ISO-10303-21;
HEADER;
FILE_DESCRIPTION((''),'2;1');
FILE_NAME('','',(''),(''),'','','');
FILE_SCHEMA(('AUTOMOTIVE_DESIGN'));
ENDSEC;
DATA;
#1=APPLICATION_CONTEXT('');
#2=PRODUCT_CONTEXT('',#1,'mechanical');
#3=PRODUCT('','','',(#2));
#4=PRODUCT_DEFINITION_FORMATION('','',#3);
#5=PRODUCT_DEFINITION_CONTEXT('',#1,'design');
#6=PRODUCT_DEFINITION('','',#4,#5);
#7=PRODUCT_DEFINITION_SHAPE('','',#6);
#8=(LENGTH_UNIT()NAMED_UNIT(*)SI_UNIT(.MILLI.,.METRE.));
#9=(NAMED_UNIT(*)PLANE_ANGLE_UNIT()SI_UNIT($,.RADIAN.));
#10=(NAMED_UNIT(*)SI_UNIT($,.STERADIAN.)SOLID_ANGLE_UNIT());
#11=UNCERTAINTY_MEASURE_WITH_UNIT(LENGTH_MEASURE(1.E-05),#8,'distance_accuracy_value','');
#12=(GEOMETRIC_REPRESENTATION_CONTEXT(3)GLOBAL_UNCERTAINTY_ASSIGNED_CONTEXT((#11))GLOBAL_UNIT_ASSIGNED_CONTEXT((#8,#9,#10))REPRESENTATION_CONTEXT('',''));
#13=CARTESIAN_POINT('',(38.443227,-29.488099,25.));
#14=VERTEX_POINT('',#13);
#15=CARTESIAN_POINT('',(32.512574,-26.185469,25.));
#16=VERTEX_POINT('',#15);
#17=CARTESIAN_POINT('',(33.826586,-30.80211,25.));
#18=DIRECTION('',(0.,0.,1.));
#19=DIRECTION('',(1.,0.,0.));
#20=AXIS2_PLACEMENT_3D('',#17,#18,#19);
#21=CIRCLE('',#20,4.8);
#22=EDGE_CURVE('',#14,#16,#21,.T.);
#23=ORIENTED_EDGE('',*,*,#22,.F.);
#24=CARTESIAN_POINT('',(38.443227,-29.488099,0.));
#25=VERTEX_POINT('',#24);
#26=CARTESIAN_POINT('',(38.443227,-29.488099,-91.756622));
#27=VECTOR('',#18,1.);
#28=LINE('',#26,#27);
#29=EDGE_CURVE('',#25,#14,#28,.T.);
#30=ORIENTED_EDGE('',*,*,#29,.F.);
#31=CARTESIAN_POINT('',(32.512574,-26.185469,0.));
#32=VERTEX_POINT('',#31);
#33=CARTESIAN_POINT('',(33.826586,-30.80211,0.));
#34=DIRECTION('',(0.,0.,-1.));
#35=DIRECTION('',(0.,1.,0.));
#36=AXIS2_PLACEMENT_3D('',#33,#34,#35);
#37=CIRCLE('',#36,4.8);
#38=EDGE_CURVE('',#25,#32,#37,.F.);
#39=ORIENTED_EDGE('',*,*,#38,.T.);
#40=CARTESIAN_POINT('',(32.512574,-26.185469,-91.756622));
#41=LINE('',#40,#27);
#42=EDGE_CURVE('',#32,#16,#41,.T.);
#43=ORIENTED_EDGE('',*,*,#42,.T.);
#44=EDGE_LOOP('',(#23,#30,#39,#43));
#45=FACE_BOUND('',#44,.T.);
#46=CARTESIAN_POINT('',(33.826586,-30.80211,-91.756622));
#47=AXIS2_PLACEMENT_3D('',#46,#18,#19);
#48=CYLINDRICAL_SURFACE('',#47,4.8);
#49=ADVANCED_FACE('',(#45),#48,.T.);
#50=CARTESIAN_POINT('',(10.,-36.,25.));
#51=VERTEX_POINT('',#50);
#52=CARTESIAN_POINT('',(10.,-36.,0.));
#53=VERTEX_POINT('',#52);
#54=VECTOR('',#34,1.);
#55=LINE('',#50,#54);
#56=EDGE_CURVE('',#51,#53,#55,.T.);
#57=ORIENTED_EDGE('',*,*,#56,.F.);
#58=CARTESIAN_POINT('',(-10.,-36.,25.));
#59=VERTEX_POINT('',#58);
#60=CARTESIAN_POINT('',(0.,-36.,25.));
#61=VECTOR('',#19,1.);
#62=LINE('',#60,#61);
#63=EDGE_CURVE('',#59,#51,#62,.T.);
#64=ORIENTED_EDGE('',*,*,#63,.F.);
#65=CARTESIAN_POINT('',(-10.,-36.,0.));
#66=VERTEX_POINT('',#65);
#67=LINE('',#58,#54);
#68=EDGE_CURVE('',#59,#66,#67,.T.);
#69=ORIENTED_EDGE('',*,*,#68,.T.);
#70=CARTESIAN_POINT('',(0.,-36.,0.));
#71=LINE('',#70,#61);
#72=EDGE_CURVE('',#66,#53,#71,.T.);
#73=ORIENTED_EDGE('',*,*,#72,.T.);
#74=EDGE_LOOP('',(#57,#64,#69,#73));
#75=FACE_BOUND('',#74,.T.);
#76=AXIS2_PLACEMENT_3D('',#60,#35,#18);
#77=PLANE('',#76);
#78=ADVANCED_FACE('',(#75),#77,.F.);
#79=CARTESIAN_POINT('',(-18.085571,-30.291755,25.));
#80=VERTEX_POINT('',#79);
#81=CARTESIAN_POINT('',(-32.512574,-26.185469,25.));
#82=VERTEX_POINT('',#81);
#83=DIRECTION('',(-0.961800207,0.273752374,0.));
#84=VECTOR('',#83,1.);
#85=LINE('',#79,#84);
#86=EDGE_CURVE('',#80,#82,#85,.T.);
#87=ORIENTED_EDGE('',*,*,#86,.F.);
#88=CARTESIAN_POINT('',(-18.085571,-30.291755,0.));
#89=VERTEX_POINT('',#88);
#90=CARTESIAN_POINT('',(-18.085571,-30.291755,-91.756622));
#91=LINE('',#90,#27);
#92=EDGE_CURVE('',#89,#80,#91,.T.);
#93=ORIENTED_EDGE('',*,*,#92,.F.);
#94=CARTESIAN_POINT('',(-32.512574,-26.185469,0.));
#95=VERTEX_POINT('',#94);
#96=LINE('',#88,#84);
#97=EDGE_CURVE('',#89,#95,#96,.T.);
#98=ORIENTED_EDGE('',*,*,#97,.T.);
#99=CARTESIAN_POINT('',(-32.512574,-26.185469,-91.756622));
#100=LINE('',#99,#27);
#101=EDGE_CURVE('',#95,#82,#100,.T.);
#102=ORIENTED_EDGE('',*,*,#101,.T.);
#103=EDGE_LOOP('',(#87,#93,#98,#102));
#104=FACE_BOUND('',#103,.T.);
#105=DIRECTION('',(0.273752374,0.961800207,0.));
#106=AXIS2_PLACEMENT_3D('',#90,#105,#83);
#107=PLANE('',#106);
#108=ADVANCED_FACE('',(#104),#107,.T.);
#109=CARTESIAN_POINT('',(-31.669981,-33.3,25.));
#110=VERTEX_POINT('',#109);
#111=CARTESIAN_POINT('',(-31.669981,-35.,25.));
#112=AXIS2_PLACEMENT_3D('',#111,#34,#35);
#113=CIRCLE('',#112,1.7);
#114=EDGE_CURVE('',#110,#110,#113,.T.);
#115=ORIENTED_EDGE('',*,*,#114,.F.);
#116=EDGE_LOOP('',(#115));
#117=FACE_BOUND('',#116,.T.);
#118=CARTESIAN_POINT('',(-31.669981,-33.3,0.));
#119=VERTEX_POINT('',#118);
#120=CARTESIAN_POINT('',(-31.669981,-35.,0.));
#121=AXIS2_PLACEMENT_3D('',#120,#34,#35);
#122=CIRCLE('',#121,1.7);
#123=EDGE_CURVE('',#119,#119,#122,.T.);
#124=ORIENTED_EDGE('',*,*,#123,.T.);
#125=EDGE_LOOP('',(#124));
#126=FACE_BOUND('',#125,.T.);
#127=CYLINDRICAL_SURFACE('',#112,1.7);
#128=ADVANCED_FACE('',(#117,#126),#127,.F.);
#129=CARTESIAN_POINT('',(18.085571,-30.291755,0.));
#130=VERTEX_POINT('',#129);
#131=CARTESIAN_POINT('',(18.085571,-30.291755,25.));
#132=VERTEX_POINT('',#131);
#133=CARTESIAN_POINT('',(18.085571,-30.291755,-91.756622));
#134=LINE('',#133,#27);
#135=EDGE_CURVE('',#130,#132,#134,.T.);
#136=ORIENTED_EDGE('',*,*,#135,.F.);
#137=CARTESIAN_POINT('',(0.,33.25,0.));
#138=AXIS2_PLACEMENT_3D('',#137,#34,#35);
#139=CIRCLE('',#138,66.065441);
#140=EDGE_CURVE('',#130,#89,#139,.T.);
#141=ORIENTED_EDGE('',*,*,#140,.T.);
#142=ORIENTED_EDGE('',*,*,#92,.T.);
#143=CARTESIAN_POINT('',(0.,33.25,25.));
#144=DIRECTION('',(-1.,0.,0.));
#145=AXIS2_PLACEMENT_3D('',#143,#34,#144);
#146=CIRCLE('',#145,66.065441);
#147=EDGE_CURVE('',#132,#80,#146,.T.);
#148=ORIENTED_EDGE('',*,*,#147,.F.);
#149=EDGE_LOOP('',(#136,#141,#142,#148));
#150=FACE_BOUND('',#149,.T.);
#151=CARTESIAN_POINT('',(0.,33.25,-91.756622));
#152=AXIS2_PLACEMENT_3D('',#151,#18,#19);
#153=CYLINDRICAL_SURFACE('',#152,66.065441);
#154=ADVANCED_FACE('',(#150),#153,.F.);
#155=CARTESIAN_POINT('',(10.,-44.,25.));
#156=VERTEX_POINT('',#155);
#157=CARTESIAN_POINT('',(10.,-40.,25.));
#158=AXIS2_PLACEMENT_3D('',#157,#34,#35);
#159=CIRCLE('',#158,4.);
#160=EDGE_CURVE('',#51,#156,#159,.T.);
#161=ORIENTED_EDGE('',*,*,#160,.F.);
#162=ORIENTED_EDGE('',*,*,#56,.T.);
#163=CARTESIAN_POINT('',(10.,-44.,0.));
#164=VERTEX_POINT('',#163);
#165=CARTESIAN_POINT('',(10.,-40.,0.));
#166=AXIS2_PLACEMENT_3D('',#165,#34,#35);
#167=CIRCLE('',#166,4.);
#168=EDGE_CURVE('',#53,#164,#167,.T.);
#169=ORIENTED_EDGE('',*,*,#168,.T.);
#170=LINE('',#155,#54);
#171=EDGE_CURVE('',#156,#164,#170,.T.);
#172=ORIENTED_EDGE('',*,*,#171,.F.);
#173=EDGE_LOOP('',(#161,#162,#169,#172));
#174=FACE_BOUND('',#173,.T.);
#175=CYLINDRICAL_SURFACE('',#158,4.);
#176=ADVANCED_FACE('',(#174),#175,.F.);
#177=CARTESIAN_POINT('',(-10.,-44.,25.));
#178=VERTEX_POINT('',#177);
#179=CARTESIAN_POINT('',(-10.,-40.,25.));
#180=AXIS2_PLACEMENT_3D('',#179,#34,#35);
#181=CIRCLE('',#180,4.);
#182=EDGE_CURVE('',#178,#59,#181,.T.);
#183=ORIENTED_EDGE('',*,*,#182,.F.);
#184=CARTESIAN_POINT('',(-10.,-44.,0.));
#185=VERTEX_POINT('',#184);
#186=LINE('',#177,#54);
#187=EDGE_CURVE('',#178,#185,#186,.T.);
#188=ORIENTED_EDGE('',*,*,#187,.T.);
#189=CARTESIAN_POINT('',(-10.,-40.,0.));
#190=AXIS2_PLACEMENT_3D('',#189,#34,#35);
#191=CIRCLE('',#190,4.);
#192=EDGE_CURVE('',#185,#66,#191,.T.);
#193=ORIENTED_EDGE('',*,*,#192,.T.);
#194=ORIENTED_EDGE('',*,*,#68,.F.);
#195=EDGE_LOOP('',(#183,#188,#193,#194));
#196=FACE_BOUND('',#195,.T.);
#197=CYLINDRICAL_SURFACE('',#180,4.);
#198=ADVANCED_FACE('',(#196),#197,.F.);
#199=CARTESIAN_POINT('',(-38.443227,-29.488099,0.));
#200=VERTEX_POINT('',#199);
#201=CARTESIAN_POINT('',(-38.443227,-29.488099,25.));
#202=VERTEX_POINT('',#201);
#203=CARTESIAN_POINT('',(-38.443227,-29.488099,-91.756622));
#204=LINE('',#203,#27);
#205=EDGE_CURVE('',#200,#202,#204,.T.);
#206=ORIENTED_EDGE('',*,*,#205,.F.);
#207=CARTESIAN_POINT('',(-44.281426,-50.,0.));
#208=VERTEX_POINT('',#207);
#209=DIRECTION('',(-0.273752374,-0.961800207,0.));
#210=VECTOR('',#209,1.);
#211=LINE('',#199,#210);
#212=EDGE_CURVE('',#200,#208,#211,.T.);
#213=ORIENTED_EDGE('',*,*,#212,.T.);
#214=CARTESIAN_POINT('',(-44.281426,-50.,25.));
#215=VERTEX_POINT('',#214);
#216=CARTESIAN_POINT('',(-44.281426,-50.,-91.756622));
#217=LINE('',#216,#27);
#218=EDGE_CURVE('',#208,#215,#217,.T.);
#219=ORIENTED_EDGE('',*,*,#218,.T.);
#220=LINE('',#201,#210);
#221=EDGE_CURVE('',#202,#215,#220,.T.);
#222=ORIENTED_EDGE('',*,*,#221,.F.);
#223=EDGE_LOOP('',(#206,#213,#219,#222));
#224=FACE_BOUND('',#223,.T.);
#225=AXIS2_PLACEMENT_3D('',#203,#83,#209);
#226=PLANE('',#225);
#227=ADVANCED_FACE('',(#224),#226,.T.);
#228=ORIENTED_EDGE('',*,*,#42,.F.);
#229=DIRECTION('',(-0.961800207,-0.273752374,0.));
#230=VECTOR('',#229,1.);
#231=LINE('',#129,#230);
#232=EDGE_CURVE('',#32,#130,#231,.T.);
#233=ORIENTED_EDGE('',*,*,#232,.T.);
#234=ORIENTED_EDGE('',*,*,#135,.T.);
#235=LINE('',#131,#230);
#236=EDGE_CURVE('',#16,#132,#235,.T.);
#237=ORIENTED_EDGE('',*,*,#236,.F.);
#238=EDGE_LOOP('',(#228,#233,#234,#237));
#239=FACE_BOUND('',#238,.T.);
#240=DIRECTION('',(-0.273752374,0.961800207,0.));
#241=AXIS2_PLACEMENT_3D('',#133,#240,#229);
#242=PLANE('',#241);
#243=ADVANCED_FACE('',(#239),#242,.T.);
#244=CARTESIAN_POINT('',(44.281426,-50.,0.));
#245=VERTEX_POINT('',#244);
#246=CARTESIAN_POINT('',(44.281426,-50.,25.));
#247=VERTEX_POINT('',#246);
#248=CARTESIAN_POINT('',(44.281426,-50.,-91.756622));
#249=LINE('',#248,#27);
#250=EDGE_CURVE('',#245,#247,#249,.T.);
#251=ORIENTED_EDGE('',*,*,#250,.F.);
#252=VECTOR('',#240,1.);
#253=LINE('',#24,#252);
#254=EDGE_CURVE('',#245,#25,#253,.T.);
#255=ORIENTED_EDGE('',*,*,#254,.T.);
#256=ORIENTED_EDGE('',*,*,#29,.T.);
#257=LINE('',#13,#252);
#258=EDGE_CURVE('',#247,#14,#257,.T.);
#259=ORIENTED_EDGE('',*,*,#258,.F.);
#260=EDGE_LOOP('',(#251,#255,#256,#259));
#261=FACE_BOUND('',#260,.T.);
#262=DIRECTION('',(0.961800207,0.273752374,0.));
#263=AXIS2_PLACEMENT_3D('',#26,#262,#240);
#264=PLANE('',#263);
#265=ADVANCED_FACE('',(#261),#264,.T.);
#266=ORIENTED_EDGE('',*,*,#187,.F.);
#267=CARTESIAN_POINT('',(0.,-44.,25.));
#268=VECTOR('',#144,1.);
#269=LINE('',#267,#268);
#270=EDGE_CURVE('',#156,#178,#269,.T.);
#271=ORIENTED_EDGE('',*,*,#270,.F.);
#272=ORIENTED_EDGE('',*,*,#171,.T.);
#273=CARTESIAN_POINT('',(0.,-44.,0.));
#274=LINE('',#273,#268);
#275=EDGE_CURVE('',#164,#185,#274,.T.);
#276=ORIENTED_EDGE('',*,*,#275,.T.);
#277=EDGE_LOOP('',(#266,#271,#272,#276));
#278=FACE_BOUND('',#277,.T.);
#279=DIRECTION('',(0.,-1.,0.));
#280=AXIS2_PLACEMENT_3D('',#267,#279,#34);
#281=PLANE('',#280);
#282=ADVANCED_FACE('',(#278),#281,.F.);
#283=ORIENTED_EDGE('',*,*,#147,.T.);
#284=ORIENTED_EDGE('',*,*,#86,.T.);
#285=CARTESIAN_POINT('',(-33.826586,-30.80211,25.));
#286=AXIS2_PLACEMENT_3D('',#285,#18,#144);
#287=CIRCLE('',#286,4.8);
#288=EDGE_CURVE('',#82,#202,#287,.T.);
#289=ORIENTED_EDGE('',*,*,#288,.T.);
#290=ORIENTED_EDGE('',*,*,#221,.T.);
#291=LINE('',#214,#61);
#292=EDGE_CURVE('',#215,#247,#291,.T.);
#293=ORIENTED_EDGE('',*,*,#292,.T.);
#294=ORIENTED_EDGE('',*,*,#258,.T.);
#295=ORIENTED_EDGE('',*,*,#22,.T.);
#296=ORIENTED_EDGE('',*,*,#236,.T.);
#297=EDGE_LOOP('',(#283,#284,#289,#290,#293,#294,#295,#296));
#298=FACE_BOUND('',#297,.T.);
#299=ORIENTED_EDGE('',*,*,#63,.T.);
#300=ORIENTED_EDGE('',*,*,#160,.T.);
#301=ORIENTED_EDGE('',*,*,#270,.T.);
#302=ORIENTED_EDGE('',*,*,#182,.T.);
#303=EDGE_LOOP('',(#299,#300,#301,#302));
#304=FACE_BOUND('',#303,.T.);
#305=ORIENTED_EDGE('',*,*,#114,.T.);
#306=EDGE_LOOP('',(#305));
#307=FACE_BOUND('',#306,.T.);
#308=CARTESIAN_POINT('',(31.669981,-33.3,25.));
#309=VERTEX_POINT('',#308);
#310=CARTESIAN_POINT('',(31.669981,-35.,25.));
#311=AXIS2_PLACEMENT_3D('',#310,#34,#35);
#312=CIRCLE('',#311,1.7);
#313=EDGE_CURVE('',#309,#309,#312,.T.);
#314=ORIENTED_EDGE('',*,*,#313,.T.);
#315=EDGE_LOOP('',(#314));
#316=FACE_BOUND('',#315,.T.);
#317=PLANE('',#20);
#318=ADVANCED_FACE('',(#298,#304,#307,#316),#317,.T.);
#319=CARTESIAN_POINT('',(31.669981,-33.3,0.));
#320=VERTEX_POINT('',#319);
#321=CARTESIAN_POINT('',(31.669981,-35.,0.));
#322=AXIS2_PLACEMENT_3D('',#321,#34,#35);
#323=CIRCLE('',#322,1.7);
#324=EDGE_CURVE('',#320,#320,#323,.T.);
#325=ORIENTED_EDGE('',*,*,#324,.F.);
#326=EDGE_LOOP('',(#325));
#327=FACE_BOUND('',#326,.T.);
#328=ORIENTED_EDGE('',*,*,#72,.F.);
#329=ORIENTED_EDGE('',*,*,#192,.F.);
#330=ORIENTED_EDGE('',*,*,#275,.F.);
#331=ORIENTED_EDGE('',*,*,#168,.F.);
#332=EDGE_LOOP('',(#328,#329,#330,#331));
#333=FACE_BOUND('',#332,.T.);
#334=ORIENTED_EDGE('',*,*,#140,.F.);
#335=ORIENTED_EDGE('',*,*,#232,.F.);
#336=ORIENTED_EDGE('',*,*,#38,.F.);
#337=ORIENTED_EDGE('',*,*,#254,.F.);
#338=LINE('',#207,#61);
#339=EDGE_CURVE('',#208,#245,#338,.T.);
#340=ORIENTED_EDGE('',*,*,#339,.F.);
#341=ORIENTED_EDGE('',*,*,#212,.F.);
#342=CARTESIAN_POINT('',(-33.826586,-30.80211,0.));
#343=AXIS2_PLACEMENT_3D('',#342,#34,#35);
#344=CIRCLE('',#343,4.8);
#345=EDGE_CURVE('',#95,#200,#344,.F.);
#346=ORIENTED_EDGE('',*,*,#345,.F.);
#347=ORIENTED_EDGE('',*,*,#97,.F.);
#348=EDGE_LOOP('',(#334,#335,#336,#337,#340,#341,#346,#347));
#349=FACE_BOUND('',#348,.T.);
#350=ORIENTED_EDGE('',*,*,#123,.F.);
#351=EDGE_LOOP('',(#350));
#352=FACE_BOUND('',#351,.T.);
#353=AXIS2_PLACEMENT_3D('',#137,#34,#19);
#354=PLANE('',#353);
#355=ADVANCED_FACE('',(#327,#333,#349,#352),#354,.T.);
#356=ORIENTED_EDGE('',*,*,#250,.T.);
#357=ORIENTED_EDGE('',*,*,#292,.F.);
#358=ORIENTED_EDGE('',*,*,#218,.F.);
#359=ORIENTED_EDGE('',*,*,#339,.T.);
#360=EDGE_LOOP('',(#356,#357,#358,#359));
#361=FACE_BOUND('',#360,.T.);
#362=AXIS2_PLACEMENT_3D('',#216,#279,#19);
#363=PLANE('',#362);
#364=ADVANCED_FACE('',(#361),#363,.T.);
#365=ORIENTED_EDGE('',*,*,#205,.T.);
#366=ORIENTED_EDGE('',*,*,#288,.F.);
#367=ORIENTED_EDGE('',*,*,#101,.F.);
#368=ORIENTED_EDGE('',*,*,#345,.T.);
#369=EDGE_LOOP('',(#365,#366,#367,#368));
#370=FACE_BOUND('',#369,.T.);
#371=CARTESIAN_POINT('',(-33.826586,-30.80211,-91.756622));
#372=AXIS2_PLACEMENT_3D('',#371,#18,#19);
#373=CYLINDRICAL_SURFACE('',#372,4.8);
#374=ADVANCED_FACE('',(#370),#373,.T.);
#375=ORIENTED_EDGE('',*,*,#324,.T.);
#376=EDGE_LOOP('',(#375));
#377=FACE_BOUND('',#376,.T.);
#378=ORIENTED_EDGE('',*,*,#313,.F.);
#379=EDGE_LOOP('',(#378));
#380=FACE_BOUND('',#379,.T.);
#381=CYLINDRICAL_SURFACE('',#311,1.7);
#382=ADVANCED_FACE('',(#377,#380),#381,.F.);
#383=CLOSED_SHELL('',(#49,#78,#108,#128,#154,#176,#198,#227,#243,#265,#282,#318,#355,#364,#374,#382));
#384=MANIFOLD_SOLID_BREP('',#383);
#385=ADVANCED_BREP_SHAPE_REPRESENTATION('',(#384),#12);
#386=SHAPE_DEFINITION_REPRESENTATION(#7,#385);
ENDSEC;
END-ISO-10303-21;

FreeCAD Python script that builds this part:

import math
import FreeCAD as App
import Part
import Sketcher
Q = App.Units.Quantity

doc = App.newDocument("Part")
params = doc.addObject("Spreadsheet::Sheet", "Params")
for row, (alias, value) in enumerate([
    ("sketch1_radius", "4.8 mm"),
    ("sketch1_length", "15 mm"),
    ("pad1_length", "25 mm"),
    ("sketch2_radius", "4 mm"),
    ("sketch2_width", "20 mm"),
    ("sketch3_diameter", "3.4 mm"),
], start=1):
    params.set(f"A{row}", alias)
    params.set(f"B{row}", "=" + value)
    params.setAlias(f"B{row}", alias)

body = doc.addObject("PartDesign::Body", "Body")

sketch1 = body.newObject("Sketcher::SketchObject", "Sketch")
sketch1.AttachmentSupport = (doc.getObject("XY_Plane"), [""])
sketch1.MapMode = "FlatFace"
sketch1.AttachmentOffset = App.Placement(App.Vector(0, 0, 25), App.Rotation())
sketch1.addGeometry(Part.LineSegment(App.Vector(32.512574, -26.185469, 0), App.Vector(18.085571, -30.291755, 0)), False)
sketch1.addGeometry(Part.ArcOfCircle(Part.Circle(App.Vector(0, 33.25, 0), App.Vector(0, 0, 1), 66.065441), math.radians(-90), math.radians(-74.112322)), False)
sketch1.addGeometry(Part.ArcOfCircle(Part.Circle(App.Vector(0, 33.25, 0), App.Vector(0, 0, 1), 66.065441), math.radians(-105.887678), math.radians(-90)), False)
sketch1.addGeometry(Part.LineSegment(App.Vector(-18.085571, -30.291755, 0), App.Vector(-32.512574, -26.185469, 0)), False)
sketch1.addGeometry(Part.ArcOfCircle(Part.Circle(App.Vector(-33.826586, -30.80211, 0), App.Vector(0, 0, 1), 4.8), math.radians(74.112322), math.radians(164.112322)), False)
sketch1.addGeometry(Part.LineSegment(App.Vector(-38.443227, -29.488099, 0), App.Vector(-44.281426, -50, 0)), False)
sketch1.addGeometry(Part.LineSegment(App.Vector(-44.281426, -50, 0), App.Vector(44.281426, -50, 0)), False)
sketch1.addGeometry(Part.LineSegment(App.Vector(44.281426, -50, 0), App.Vector(38.443227, -29.488099, 0)), False)
sketch1.addGeometry(Part.ArcOfCircle(Part.Circle(App.Vector(33.826586, -30.80211, 0), App.Vector(0, 0, 1), 4.8), math.radians(15.887678), math.radians(105.887678)), False)
sketch1.addConstraint(Sketcher.Constraint("Tangent", 0, 2, 1, 2))
sketch1.addConstraint(Sketcher.Constraint("Tangent", 1, 1, 2, 2))
sketch1.addConstraint(Sketcher.Constraint("Tangent", 2, 1, 3, 1))
sketch1.addConstraint(Sketcher.Constraint("Tangent", 3, 2, 4, 1))
sketch1.addConstraint(Sketcher.Constraint("Tangent", 4, 2, 5, 1))
sketch1.addConstraint(Sketcher.Constraint("Coincident", 5, 2, 6, 1))
sketch1.addConstraint(Sketcher.Constraint("Coincident", 6, 2, 7, 1))
sketch1.addConstraint(Sketcher.Constraint("Tangent", 7, 2, 8, 1))
sketch1.addConstraint(Sketcher.Constraint("Tangent", 8, 2, 0, 1))
sketch1.addConstraint(Sketcher.Constraint("Horizontal", 6))
sketch1.addConstraint(Sketcher.Constraint("Equal", 1, 2))
sketch1.addConstraint(Sketcher.Constraint("Equal", 4, 8))
sketch1.addConstraint(Sketcher.Constraint("Symmetric", 4, 3, 8, 3, -2))
sketch1.addConstraint(Sketcher.Constraint("PointOnObject", 1, 3, -2))
sketch1.addConstraint(Sketcher.Constraint("PointOnObject", 1, 1, -2))
sketch1.addConstraint(Sketcher.Constraint("Perpendicular", 3, 5))
sketch1.addConstraint(Sketcher.Constraint("Perpendicular", 0, 7))
sketch1.addConstraint(Sketcher.Constraint("Radius", 4, Q("4.8 mm")))
sketch1.addConstraint(Sketcher.Constraint("Distance", 0, Q("15 mm")))
sketch1.addConstraint(Sketcher.Constraint("DistanceY", 5, 2, -1, 1, Q("50 mm")))
sketch1.addConstraint(Sketcher.Constraint("DistanceY", -1, 1, 1, 3, Q("33.25 mm")))
sketch1.addConstraint(Sketcher.Constraint("Radius", 1, Q("66.065441 mm")))
sketch1.addConstraint(Sketcher.Constraint("DistanceX", 3, 2, 6, 2, Q("76.794001 mm")))
sketch1.setExpression("Constraints[17]", "Params.sketch1_radius")
sketch1.setExpression("Constraints[18]", "Params.sketch1_length")
pad1 = body.newObject("PartDesign::Pad", "Pad")
pad1.Profile = sketch1
pad1.setExpression("Length", "Params.pad1_length")
pad1.Reversed = True

sketch2 = body.newObject("Sketcher::SketchObject", "Sketch001")
sketch2.AttachmentSupport = (doc.getObject("XY_Plane"), [""])
sketch2.MapMode = "FlatFace"
sketch2.addGeometry(Part.LineSegment(App.Vector(10, -44, 0), App.Vector(-10, -44, 0)), False)
sketch2.addGeometry(Part.ArcOfCircle(Part.Circle(App.Vector(-10, -40, 0), App.Vector(0, 0, 1), 4), math.radians(90), math.radians(270)), False)
sketch2.addGeometry(Part.LineSegment(App.Vector(-10, -36, 0), App.Vector(10, -36, 0)), False)
sketch2.addGeometry(Part.ArcOfCircle(Part.Circle(App.Vector(10, -40, 0), App.Vector(0, 0, 1), 4), math.radians(-90), math.radians(90)), False)
sketch2.addConstraint(Sketcher.Constraint("Tangent", 0, 2, 1, 2))
sketch2.addConstraint(Sketcher.Constraint("Tangent", 1, 1, 2, 1))
sketch2.addConstraint(Sketcher.Constraint("Tangent", 2, 2, 3, 2))
sketch2.addConstraint(Sketcher.Constraint("Tangent", 3, 1, 0, 1))
sketch2.addConstraint(Sketcher.Constraint("Horizontal", 0))
sketch2.addConstraint(Sketcher.Constraint("Horizontal", 2))
sketch2.addConstraint(Sketcher.Constraint("Radius", 1, Q("4 mm")))
sketch2.addConstraint(Sketcher.Constraint("DistanceX", 0, 2, 0, 1, Q("20 mm")))
sketch2.addConstraint(Sketcher.Constraint("DistanceX", 1, 3, -1, 1, Q("10 mm")))
sketch2.addConstraint(Sketcher.Constraint("DistanceY", 1, 3, -1, 1, Q("40 mm")))
sketch2.setExpression("Constraints[6]", "Params.sketch2_radius")
sketch2.setExpression("Constraints[7]", "Params.sketch2_width")
pocket1 = body.newObject("PartDesign::Pocket", "Pocket")
pocket1.Profile = sketch2
pocket1.Type = "ThroughAll"
pocket1.Reversed = True

sketch3 = body.newObject("Sketcher::SketchObject", "Sketch002")
sketch3.AttachmentSupport = (doc.getObject("XY_Plane"), [""])
sketch3.MapMode = "FlatFace"
sketch3.AttachmentOffset = App.Placement(App.Vector(0, 0, -3), App.Rotation())
sketch3.addGeometry(Part.Circle(App.Vector(-31.669981, -35, 0), App.Vector(0, 0, 1), 1.7), False)
sketch3.addGeometry(Part.Circle(App.Vector(31.669981, -35, 0), App.Vector(0, 0, 1), 1.7), False)
sketch3.addConstraint(Sketcher.Constraint("Equal", 0, 1))
sketch3.addConstraint(Sketcher.Constraint("Symmetric", 0, 3, 1, 3, -2))
sketch3.addConstraint(Sketcher.Constraint("Diameter", 0, Q("3.4 mm")))
sketch3.addConstraint(Sketcher.Constraint("DistanceY", 0, 3, -1, 1, Q("35 mm")))
sketch3.addConstraint(Sketcher.Constraint("DistanceX", 0, 3, -1, 1, Q("31.669981 mm")))
sketch3.setExpression("Constraints[2]", "Params.sketch3_diameter")
pocket2 = body.newObject("PartDesign::Pocket", "Pocket001")
pocket2.Profile = sketch3
pocket2.Type = "ThroughAll"
pocket2.Reversed = True

doc.recompute()
